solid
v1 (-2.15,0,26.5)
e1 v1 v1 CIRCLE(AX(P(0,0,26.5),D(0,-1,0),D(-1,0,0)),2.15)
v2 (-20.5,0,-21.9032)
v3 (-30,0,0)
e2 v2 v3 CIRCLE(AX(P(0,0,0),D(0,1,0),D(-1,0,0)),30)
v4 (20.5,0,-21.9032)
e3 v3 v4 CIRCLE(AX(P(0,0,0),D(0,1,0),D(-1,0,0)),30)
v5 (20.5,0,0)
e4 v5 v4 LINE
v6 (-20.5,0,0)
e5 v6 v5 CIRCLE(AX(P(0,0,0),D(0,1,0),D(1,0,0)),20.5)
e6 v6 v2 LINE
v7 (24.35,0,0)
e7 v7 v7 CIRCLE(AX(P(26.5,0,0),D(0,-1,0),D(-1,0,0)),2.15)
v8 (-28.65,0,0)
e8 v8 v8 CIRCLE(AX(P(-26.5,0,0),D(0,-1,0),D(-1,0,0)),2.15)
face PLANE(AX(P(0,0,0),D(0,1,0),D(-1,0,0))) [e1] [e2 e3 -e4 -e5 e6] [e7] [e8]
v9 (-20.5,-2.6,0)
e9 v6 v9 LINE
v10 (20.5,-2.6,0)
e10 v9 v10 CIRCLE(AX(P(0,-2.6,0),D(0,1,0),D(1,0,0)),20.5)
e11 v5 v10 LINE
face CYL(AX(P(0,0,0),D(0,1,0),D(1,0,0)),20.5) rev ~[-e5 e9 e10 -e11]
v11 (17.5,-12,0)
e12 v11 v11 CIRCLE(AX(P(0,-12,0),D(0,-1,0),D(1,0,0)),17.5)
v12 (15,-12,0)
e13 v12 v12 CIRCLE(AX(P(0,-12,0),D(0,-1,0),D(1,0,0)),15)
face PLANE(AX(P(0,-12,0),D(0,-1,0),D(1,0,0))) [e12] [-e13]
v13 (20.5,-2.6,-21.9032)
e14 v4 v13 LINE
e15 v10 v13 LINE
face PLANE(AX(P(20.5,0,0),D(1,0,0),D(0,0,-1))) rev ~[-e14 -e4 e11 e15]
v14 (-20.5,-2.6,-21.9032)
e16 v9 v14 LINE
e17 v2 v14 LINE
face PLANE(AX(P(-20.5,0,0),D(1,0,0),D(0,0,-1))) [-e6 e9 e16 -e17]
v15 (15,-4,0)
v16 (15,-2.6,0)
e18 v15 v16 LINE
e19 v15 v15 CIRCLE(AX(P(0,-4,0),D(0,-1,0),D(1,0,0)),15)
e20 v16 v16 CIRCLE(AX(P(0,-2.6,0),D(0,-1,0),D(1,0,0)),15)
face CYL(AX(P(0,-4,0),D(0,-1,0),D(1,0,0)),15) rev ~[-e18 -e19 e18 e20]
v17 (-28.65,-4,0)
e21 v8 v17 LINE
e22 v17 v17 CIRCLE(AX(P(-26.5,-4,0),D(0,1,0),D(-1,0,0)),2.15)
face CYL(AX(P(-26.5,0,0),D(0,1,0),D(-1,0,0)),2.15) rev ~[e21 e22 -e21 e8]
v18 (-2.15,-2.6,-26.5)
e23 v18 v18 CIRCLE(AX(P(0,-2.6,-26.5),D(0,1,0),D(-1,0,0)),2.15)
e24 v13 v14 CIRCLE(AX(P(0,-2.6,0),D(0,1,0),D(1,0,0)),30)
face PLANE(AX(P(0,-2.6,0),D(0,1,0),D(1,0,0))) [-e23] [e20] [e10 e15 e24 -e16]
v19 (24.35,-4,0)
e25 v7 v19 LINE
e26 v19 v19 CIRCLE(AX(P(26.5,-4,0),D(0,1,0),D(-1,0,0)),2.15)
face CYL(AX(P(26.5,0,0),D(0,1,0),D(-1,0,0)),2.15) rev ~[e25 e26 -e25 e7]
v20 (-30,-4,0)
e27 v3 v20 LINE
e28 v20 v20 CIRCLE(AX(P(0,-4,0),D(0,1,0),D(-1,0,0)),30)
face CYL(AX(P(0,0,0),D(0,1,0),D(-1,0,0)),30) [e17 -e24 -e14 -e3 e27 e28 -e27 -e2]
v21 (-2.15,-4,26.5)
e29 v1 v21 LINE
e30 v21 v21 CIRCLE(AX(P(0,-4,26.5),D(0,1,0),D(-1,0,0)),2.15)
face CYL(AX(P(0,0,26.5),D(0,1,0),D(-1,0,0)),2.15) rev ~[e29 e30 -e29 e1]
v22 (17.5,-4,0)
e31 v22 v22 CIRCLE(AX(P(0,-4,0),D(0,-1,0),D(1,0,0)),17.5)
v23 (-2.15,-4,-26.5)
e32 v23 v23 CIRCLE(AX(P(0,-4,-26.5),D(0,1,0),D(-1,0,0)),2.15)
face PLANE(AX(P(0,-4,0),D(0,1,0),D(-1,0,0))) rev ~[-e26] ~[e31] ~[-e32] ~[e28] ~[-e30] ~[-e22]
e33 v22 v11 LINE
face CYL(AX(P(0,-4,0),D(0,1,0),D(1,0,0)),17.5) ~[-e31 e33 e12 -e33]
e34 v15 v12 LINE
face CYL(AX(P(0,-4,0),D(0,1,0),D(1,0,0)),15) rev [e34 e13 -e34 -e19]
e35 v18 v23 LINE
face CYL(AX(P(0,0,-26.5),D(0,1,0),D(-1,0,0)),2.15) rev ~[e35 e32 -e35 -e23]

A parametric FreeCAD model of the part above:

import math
import FreeCAD as App
import Part
import Sketcher

doc = App.newDocument("Part")
body = doc.addObject("PartDesign::Body", "Body")

# Sketch on XZ plane
sketch1 = doc.addObject("Sketcher::SketchObject", "Sketch")
body.addObject(sketch1)
sketch1.AttachmentSupport = (doc.XZ_Plane, [""])
sketch1.MapMode = "FlatFace"
sketch1.addGeometry(Part.Circle(App.Vector(0, 0, 0), App.Vector(0, 0, 1), 30), False)
sketch1.addGeometry(Part.Circle(App.Vector(0, 26.5, 0), App.Vector(0, 0, 1), 2.1), False)
sketch1.addGeometry(Part.Circle(App.Vector(26.5, 0, 0), App.Vector(0, 0, 1), 2.1), False)
sketch1.addGeometry(Part.Circle(App.Vector(0, -26.5, 0), App.Vector(0, 0, 1), 2.1), False)
sketch1.addGeometry(Part.Circle(App.Vector(-26.5, 0, 0), App.Vector(0, 0, 1), 2.1), False)
sketch1.addConstraint(Sketcher.Constraint("Coincident", 0, 3, -1, 1))
sketch1.addConstraint(Sketcher.Constraint("Equal", 1, 2))
sketch1.addConstraint(Sketcher.Constraint("Equal", 2, 3))
sketch1.addConstraint(Sketcher.Constraint("Equal", 3, 4))
sketch1.addConstraint(Sketcher.Constraint("Symmetric", 1, 3, 3, 3, -1, 1))
sketch1.addConstraint(Sketcher.Constraint("Symmetric", 2, 3, 4, 3, -1, 1))
sketch1.addConstraint(Sketcher.Constraint("PointOnObject", 1, 3, -2))
sketch1.addConstraint(Sketcher.Constraint("PointOnObject", 2, 3, -1))
sketch1.addConstraint(Sketcher.Constraint("Diameter", 0, 60.0))
sketch1.addConstraint(Sketcher.Constraint("Diameter", 1, 4.3))
sketch1.addConstraint(Sketcher.Constraint("DistanceY", 3, 3, 1, 3, 53.0))
sketch1.addConstraint(Sketcher.Constraint("DistanceX", 4, 3, 2, 3, 53.0))
pad1 = doc.addObject("PartDesign::Pad", "Pad")
body.addObject(pad1)
pad1.Profile = sketch1
pad1.Length = 4

# Sketch on XZ plane
sketch2 = doc.addObject("Sketcher::SketchObject", "Sketch001")
body.addObject(sketch2)
sketch2.AttachmentSupport = (doc.XZ_Plane, [""])
sketch2.MapMode = "FlatFace"
sketch2.addGeometry(Part.ArcOfCircle(Part.Circle(App.Vector(0, 0, 0), App.Vector(0, 0, 1), 20), math.radians(0), math.radians(180)), False)
sketch2.addGeometry(Part.LineSegment(App.Vector(20, 0, 0), App.Vector(20, -22, 0)), False)
sketch2.addGeometry(Part.ArcOfCircle(Part.Circle(App.Vector(0, 0, 0), App.Vector(0, 0, 1), 30), math.radians(-133), math.radians(-47)), False)
sketch2.addGeometry(Part.LineSegment(App.Vector(-20, -22, 0), App.Vector(-20, 0, 0)), False)
sketch2.addConstraint(Sketcher.Constraint("Tangent", 0, 1, 1, 1))
sketch2.addConstraint(Sketcher.Constraint("Coincident", 1, 2, 2, 2))
sketch2.addConstraint(Sketcher.Constraint("Coincident", 2, 1, 3, 1))
sketch2.addConstraint(Sketcher.Constraint("Tangent", 3, 2, 0, 2))
sketch2.addConstraint(Sketcher.Constraint("Vertical", 1))
sketch2.addConstraint(Sketcher.Constraint("Vertical", 3))
sketch2.addConstraint(Sketcher.Constraint("Coincident", 0, 3, -1, 1))
sketch2.addConstraint(Sketcher.Constraint("Coincident", 2, 3, -1, 1))
sketch2.addConstraint(Sketcher.Constraint("Radius", 0, 20.5))
sketch2.addConstraint(Sketcher.Constraint("Radius", 2, 30.0))
pocket1 = doc.addObject("PartDesign::Pocket", "Pocket")
body.addObject(pocket1)
pocket1.Profile = sketch2
pocket1.Length = 2.6
pocket1.Reversed = True

# Sketch on XZ plane
sketch3 = doc.addObject("Sketcher::SketchObject", "Sketch002")
body.addObject(sketch3)
sketch3.AttachmentSupport = (doc.XZ_Plane, [""])
sketch3.MapMode = "FlatFace"
sketch3.AttachmentOffset = App.Placement(App.Vector(0, 0, 4), App.Rotation())
sketch3.addGeometry(Part.Circle(App.Vector(0, 0, 0), App.Vector(0, 0, 1), 15), False)
sketch3.addConstraint(Sketcher.Constraint("Coincident", 0, 3, -1, 1))
sketch3.addConstraint(Sketcher.Constraint("Diameter", 0, 30.0))
pocket2 = doc.addObject("PartDesign::Pocket", "Pocket001")
body.addObject(pocket2)
pocket2.Profile = sketch3
pocket2.Type = "ThroughAll"

# Sketch on XZ plane
sketch4 = doc.addObject("Sketcher::SketchObject", "Sketch003")
body.addObject(sketch4)
sketch4.AttachmentSupport = (doc.XZ_Plane, [""])
sketch4.MapMode = "FlatFace"
sketch4.AttachmentOffset = App.Placement(App.Vector(0, 0, 4), App.Rotation())
sketch4.addGeometry(Part.Circle(App.Vector(0, 0, 0), App.Vector(0, 0, 1), 18), False)
sketch4.addGeometry(Part.Circle(App.Vector(0, 0, 0), App.Vector(0, 0, 1), 15), False)
sketch4.addConstraint(Sketcher.Constraint("Coincident", 0, 3, -1, 1))
sketch4.addConstraint(Sketcher.Constraint("Coincident", 1, 3, -1, 1))
sketch4.addConstraint(Sketcher.Constraint("Diameter", 0, 35.0))
sketch4.addConstraint(Sketcher.Constraint("Diameter", 1, 30.0))
pad2 = doc.addObject("PartDesign::Pad", "Pad001")
body.addObject(pad2)
pad2.Profile = sketch4
pad2.Length = 8

doc.recompute()
